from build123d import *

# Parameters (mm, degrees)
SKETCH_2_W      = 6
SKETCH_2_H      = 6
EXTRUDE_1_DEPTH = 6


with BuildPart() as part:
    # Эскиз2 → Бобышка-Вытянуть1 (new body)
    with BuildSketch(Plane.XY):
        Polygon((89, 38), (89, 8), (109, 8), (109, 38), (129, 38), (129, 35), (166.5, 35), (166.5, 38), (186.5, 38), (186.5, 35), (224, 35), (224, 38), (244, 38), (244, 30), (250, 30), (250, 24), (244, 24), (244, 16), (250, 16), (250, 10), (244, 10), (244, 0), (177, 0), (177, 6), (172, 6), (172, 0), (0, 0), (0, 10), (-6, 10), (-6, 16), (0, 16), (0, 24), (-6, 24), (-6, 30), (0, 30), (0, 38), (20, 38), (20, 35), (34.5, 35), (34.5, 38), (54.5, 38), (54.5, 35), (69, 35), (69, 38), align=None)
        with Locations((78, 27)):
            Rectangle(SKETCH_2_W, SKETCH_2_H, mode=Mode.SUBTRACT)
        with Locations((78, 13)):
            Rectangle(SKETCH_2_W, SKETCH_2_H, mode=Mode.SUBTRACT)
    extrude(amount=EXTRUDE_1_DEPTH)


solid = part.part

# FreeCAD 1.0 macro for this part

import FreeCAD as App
import Part
import Sketcher


def add_polygon(sketch, points):
    """Adds a closed chain of lines whose ends are joined by coincident constraints."""
    first, n = sketch.GeometryCount, len(points)
    for a, b in zip(points, points[1:] + points[:1]):
        sketch.addGeometry(Part.LineSegment(App.Vector(*a, 0), App.Vector(*b, 0)), False)
    for i in range(n):
        sketch.addConstraint(Sketcher.Constraint("Coincident", first + i, 2, first + (i + 1) % n, 1))

doc = App.newDocument("Part")
body = doc.addObject("PartDesign::Body", "Body")

sketch1 = body.newObject("Sketcher::SketchObject", "Sketch")
sketch1.AttachmentSupport = (doc.getObject("XY_Plane"), [""])
sketch1.MapMode = "FlatFace"
add_polygon(sketch1, [(89, 8), (89, 38), (69, 38), (69, 35), (54.5, 35), (54.5, 38), (34.5, 38), (34.5, 35), (20, 35), (20, 38), (0, 38), (0, 30), (-6, 30), (-6, 24), (0, 24), (0, 16), (-6, 16), (-6, 10), (0, 10), (0, 0), (172, 0), (172, 6), (177, 6), (177, 0), (244, 0), (244, 10), (250, 10), (250, 16), (244, 16), (244, 24), (250, 24), (250, 30), (244, 30), (244, 38), (224, 38), (224, 35), (186.5, 35), (186.5, 38), (166.5, 38), (166.5, 35), (129, 35), (129, 38), (109, 38), (109, 8)])
add_polygon(sketch1, [(75, 10), (75, 16), (81, 16), (81, 10)])
add_polygon(sketch1, [(75, 24), (75, 30), (81, 30), (81, 24)])
sketch1.addConstraint([
    Sketcher.Constraint("Vertical", 0),
    Sketcher.Constraint("Horizontal", 1),
    Sketcher.Constraint("Vertical", 2),
    Sketcher.Constraint("Horizontal", 3),
    Sketcher.Constraint("Vertical", 4),
    Sketcher.Constraint("Horizontal", 5),
    Sketcher.Constraint("Vertical", 6),
    Sketcher.Constraint("Horizontal", 7),
    Sketcher.Constraint("Vertical", 8),
    Sketcher.Constraint("Horizontal", 9),
    Sketcher.Constraint("Vertical", 10),
    Sketcher.Constraint("Horizontal", 11),
    Sketcher.Constraint("Vertical", 12),
    Sketcher.Constraint("Horizontal", 13),
    Sketcher.Constraint("Vertical", 14),
    Sketcher.Constraint("Horizontal", 15),
    Sketcher.Constraint("Vertical", 16),
    Sketcher.Constraint("Horizontal", 17),
    Sketcher.Constraint("Vertical", 18),
    Sketcher.Constraint("Horizontal", 19),
    Sketcher.Constraint("Vertical", 20),
    Sketcher.Constraint("Horizontal", 21),
    Sketcher.Constraint("Vertical", 22),
    Sketcher.Constraint("Horizontal", 23),
    Sketcher.Constraint("Vertical", 24),
    Sketcher.Constraint("Horizontal", 25),
    Sketcher.Constraint("Vertical", 26),
    Sketcher.Constraint("Horizontal", 27),
    Sketcher.Constraint("Vertical", 28),
    Sketcher.Constraint("Horizontal", 29),
    Sketcher.Constraint("Vertical", 30),
    Sketcher.Constraint("Horizontal", 31),
    Sketcher.Constraint("Vertical", 32),
    Sketcher.Constraint("Horizontal", 33),
    Sketcher.Constraint("Vertical", 34),
    Sketcher.Constraint("Horizontal", 35),
    Sketcher.Constraint("Vertical", 36),
    Sketcher.Constraint("Horizontal", 37),
    Sketcher.Constraint("Vertical", 38),
    Sketcher.Constraint("Horizontal", 39),
    Sketcher.Constraint("Vertical", 40),
    Sketcher.Constraint("Horizontal", 41),
    Sketcher.Constraint("Vertical", 42),
    Sketcher.Constraint("Horizontal", 43),
    Sketcher.Constraint("Vertical", 44),
    Sketcher.Constraint("Horizontal", 45),
    Sketcher.Constraint("Vertical", 46),
    Sketcher.Constraint("Horizontal", 47),
    Sketcher.Constraint("Vertical", 48),
    Sketcher.Constraint("Horizontal", 49),
    Sketcher.Constraint("Vertical", 50),
    Sketcher.Constraint("Horizontal", 51),
    Sketcher.Constraint("Coincident", 18, 2, -1, 1),
    Sketcher.Constraint("PointOnObject", 9, 2, -2),
    Sketcher.Constraint("PointOnObject", 13, 2, -2),
    Sketcher.Constraint("PointOnObject", 22, 2, -1),
    Sketcher.Constraint("Horizontal", 1, 2, 4, 2),
    Sketcher.Constraint("Horizontal", 3, 2, 6, 2),
    Sketcher.Constraint("Horizontal", 5, 2, 8, 2),
    Sketcher.Constraint("Horizontal", 17, 2, 24, 2),
    Sketcher.Constraint("Horizontal", 15, 2, 26, 2),
    Sketcher.Constraint("Horizontal", 13, 2, 28, 2),
    Sketcher.Constraint("Horizontal", 11, 2, 30, 2),
    Sketcher.Constraint("Horizontal", 9, 2, 32, 2),
    Sketcher.Constraint("Horizontal", 7, 2, 34, 2),
    Sketcher.Constraint("Horizontal", 33, 2, 36, 2),
    Sketcher.Constraint("Horizontal", 35, 2, 38, 2),
    Sketcher.Constraint("Horizontal", 37, 2, 40, 2),
    Sketcher.Constraint("Horizontal", 27, 2, 44, 2),
    Sketcher.Constraint("Horizontal", 25, 2, 46, 2),
    Sketcher.Constraint("Horizontal", 31, 2, 48, 2),
    Sketcher.Constraint("Horizontal", 29, 2, 50, 2),
    Sketcher.Constraint("Vertical", 12, 2, 15, 2),
    Sketcher.Constraint("Vertical", 24, 2, 27, 2),
    Sketcher.Constraint("Vertical", 26, 2, 29, 2),
    Sketcher.Constraint("Vertical", 28, 2, 31, 2),
    Sketcher.Constraint("Vertical", 47, 2, 48, 2),
    Sketcher.Constraint("Vertical", 46, 2, 49, 2),
    Sketcher.Constraint("Equal", 1, 5),
    Sketcher.Constraint("Equal", 3, 7),
    Sketcher.Constraint("Equal", 5, 9),
    Sketcher.Constraint("Equal", 17, 25),
    Sketcher.Constraint("Equal", 9, 33),
    Sketcher.Constraint("Equal", 33, 37),
    Sketcher.Constraint("Equal", 35, 39),
    Sketcher.Constraint("Equal", 37, 41),
    Sketcher.Constraint("Equal", 41, 43),
    Sketcher.Constraint("Equal", 31, 45),
    Sketcher.Constraint("Equal", 51, 12),
    Sketcher.Constraint("Equal", 10, 14),
    Sketcher.Constraint("Equal", 12, 16),
    Sketcher.Constraint("Equal", 16, 20),
    Sketcher.Constraint("DistanceX", 1, 2, 1, 1, 20.0),
    Sketcher.Constraint("DistanceX", 11, 2, 11, 1, 6.0),
    Sketcher.Constraint("DistanceX", 19, 1, 19, 2, 172.0),
    Sketcher.Constraint("DistanceX", 21, 1, 21, 2, 5.0),
    Sketcher.Constraint("DistanceX", 23, 1, 23, 2, 67.0),
    Sketcher.Constraint("DistanceY", 0, 1, 0, 2, 30.0),
    Sketcher.Constraint("DistanceY", 2, 2, 2, 1, 3.0),
    Sketcher.Constraint("DistanceY", 10, 2, 10, 1, 8.0),
    Sketcher.Constraint("DistanceY", 18, 2, 18, 1, 10.0),
    Sketcher.Constraint("DistanceX", 3, 2, 3, 1, 14.5),
    Sketcher.Constraint("DistanceX", -1, 1, 44, 2, 75.0),
])
pad1 = body.newObject("PartDesign::Pad", "Pad")
pad1.Profile = sketch1
pad1.Length = 6

doc.recompute()
